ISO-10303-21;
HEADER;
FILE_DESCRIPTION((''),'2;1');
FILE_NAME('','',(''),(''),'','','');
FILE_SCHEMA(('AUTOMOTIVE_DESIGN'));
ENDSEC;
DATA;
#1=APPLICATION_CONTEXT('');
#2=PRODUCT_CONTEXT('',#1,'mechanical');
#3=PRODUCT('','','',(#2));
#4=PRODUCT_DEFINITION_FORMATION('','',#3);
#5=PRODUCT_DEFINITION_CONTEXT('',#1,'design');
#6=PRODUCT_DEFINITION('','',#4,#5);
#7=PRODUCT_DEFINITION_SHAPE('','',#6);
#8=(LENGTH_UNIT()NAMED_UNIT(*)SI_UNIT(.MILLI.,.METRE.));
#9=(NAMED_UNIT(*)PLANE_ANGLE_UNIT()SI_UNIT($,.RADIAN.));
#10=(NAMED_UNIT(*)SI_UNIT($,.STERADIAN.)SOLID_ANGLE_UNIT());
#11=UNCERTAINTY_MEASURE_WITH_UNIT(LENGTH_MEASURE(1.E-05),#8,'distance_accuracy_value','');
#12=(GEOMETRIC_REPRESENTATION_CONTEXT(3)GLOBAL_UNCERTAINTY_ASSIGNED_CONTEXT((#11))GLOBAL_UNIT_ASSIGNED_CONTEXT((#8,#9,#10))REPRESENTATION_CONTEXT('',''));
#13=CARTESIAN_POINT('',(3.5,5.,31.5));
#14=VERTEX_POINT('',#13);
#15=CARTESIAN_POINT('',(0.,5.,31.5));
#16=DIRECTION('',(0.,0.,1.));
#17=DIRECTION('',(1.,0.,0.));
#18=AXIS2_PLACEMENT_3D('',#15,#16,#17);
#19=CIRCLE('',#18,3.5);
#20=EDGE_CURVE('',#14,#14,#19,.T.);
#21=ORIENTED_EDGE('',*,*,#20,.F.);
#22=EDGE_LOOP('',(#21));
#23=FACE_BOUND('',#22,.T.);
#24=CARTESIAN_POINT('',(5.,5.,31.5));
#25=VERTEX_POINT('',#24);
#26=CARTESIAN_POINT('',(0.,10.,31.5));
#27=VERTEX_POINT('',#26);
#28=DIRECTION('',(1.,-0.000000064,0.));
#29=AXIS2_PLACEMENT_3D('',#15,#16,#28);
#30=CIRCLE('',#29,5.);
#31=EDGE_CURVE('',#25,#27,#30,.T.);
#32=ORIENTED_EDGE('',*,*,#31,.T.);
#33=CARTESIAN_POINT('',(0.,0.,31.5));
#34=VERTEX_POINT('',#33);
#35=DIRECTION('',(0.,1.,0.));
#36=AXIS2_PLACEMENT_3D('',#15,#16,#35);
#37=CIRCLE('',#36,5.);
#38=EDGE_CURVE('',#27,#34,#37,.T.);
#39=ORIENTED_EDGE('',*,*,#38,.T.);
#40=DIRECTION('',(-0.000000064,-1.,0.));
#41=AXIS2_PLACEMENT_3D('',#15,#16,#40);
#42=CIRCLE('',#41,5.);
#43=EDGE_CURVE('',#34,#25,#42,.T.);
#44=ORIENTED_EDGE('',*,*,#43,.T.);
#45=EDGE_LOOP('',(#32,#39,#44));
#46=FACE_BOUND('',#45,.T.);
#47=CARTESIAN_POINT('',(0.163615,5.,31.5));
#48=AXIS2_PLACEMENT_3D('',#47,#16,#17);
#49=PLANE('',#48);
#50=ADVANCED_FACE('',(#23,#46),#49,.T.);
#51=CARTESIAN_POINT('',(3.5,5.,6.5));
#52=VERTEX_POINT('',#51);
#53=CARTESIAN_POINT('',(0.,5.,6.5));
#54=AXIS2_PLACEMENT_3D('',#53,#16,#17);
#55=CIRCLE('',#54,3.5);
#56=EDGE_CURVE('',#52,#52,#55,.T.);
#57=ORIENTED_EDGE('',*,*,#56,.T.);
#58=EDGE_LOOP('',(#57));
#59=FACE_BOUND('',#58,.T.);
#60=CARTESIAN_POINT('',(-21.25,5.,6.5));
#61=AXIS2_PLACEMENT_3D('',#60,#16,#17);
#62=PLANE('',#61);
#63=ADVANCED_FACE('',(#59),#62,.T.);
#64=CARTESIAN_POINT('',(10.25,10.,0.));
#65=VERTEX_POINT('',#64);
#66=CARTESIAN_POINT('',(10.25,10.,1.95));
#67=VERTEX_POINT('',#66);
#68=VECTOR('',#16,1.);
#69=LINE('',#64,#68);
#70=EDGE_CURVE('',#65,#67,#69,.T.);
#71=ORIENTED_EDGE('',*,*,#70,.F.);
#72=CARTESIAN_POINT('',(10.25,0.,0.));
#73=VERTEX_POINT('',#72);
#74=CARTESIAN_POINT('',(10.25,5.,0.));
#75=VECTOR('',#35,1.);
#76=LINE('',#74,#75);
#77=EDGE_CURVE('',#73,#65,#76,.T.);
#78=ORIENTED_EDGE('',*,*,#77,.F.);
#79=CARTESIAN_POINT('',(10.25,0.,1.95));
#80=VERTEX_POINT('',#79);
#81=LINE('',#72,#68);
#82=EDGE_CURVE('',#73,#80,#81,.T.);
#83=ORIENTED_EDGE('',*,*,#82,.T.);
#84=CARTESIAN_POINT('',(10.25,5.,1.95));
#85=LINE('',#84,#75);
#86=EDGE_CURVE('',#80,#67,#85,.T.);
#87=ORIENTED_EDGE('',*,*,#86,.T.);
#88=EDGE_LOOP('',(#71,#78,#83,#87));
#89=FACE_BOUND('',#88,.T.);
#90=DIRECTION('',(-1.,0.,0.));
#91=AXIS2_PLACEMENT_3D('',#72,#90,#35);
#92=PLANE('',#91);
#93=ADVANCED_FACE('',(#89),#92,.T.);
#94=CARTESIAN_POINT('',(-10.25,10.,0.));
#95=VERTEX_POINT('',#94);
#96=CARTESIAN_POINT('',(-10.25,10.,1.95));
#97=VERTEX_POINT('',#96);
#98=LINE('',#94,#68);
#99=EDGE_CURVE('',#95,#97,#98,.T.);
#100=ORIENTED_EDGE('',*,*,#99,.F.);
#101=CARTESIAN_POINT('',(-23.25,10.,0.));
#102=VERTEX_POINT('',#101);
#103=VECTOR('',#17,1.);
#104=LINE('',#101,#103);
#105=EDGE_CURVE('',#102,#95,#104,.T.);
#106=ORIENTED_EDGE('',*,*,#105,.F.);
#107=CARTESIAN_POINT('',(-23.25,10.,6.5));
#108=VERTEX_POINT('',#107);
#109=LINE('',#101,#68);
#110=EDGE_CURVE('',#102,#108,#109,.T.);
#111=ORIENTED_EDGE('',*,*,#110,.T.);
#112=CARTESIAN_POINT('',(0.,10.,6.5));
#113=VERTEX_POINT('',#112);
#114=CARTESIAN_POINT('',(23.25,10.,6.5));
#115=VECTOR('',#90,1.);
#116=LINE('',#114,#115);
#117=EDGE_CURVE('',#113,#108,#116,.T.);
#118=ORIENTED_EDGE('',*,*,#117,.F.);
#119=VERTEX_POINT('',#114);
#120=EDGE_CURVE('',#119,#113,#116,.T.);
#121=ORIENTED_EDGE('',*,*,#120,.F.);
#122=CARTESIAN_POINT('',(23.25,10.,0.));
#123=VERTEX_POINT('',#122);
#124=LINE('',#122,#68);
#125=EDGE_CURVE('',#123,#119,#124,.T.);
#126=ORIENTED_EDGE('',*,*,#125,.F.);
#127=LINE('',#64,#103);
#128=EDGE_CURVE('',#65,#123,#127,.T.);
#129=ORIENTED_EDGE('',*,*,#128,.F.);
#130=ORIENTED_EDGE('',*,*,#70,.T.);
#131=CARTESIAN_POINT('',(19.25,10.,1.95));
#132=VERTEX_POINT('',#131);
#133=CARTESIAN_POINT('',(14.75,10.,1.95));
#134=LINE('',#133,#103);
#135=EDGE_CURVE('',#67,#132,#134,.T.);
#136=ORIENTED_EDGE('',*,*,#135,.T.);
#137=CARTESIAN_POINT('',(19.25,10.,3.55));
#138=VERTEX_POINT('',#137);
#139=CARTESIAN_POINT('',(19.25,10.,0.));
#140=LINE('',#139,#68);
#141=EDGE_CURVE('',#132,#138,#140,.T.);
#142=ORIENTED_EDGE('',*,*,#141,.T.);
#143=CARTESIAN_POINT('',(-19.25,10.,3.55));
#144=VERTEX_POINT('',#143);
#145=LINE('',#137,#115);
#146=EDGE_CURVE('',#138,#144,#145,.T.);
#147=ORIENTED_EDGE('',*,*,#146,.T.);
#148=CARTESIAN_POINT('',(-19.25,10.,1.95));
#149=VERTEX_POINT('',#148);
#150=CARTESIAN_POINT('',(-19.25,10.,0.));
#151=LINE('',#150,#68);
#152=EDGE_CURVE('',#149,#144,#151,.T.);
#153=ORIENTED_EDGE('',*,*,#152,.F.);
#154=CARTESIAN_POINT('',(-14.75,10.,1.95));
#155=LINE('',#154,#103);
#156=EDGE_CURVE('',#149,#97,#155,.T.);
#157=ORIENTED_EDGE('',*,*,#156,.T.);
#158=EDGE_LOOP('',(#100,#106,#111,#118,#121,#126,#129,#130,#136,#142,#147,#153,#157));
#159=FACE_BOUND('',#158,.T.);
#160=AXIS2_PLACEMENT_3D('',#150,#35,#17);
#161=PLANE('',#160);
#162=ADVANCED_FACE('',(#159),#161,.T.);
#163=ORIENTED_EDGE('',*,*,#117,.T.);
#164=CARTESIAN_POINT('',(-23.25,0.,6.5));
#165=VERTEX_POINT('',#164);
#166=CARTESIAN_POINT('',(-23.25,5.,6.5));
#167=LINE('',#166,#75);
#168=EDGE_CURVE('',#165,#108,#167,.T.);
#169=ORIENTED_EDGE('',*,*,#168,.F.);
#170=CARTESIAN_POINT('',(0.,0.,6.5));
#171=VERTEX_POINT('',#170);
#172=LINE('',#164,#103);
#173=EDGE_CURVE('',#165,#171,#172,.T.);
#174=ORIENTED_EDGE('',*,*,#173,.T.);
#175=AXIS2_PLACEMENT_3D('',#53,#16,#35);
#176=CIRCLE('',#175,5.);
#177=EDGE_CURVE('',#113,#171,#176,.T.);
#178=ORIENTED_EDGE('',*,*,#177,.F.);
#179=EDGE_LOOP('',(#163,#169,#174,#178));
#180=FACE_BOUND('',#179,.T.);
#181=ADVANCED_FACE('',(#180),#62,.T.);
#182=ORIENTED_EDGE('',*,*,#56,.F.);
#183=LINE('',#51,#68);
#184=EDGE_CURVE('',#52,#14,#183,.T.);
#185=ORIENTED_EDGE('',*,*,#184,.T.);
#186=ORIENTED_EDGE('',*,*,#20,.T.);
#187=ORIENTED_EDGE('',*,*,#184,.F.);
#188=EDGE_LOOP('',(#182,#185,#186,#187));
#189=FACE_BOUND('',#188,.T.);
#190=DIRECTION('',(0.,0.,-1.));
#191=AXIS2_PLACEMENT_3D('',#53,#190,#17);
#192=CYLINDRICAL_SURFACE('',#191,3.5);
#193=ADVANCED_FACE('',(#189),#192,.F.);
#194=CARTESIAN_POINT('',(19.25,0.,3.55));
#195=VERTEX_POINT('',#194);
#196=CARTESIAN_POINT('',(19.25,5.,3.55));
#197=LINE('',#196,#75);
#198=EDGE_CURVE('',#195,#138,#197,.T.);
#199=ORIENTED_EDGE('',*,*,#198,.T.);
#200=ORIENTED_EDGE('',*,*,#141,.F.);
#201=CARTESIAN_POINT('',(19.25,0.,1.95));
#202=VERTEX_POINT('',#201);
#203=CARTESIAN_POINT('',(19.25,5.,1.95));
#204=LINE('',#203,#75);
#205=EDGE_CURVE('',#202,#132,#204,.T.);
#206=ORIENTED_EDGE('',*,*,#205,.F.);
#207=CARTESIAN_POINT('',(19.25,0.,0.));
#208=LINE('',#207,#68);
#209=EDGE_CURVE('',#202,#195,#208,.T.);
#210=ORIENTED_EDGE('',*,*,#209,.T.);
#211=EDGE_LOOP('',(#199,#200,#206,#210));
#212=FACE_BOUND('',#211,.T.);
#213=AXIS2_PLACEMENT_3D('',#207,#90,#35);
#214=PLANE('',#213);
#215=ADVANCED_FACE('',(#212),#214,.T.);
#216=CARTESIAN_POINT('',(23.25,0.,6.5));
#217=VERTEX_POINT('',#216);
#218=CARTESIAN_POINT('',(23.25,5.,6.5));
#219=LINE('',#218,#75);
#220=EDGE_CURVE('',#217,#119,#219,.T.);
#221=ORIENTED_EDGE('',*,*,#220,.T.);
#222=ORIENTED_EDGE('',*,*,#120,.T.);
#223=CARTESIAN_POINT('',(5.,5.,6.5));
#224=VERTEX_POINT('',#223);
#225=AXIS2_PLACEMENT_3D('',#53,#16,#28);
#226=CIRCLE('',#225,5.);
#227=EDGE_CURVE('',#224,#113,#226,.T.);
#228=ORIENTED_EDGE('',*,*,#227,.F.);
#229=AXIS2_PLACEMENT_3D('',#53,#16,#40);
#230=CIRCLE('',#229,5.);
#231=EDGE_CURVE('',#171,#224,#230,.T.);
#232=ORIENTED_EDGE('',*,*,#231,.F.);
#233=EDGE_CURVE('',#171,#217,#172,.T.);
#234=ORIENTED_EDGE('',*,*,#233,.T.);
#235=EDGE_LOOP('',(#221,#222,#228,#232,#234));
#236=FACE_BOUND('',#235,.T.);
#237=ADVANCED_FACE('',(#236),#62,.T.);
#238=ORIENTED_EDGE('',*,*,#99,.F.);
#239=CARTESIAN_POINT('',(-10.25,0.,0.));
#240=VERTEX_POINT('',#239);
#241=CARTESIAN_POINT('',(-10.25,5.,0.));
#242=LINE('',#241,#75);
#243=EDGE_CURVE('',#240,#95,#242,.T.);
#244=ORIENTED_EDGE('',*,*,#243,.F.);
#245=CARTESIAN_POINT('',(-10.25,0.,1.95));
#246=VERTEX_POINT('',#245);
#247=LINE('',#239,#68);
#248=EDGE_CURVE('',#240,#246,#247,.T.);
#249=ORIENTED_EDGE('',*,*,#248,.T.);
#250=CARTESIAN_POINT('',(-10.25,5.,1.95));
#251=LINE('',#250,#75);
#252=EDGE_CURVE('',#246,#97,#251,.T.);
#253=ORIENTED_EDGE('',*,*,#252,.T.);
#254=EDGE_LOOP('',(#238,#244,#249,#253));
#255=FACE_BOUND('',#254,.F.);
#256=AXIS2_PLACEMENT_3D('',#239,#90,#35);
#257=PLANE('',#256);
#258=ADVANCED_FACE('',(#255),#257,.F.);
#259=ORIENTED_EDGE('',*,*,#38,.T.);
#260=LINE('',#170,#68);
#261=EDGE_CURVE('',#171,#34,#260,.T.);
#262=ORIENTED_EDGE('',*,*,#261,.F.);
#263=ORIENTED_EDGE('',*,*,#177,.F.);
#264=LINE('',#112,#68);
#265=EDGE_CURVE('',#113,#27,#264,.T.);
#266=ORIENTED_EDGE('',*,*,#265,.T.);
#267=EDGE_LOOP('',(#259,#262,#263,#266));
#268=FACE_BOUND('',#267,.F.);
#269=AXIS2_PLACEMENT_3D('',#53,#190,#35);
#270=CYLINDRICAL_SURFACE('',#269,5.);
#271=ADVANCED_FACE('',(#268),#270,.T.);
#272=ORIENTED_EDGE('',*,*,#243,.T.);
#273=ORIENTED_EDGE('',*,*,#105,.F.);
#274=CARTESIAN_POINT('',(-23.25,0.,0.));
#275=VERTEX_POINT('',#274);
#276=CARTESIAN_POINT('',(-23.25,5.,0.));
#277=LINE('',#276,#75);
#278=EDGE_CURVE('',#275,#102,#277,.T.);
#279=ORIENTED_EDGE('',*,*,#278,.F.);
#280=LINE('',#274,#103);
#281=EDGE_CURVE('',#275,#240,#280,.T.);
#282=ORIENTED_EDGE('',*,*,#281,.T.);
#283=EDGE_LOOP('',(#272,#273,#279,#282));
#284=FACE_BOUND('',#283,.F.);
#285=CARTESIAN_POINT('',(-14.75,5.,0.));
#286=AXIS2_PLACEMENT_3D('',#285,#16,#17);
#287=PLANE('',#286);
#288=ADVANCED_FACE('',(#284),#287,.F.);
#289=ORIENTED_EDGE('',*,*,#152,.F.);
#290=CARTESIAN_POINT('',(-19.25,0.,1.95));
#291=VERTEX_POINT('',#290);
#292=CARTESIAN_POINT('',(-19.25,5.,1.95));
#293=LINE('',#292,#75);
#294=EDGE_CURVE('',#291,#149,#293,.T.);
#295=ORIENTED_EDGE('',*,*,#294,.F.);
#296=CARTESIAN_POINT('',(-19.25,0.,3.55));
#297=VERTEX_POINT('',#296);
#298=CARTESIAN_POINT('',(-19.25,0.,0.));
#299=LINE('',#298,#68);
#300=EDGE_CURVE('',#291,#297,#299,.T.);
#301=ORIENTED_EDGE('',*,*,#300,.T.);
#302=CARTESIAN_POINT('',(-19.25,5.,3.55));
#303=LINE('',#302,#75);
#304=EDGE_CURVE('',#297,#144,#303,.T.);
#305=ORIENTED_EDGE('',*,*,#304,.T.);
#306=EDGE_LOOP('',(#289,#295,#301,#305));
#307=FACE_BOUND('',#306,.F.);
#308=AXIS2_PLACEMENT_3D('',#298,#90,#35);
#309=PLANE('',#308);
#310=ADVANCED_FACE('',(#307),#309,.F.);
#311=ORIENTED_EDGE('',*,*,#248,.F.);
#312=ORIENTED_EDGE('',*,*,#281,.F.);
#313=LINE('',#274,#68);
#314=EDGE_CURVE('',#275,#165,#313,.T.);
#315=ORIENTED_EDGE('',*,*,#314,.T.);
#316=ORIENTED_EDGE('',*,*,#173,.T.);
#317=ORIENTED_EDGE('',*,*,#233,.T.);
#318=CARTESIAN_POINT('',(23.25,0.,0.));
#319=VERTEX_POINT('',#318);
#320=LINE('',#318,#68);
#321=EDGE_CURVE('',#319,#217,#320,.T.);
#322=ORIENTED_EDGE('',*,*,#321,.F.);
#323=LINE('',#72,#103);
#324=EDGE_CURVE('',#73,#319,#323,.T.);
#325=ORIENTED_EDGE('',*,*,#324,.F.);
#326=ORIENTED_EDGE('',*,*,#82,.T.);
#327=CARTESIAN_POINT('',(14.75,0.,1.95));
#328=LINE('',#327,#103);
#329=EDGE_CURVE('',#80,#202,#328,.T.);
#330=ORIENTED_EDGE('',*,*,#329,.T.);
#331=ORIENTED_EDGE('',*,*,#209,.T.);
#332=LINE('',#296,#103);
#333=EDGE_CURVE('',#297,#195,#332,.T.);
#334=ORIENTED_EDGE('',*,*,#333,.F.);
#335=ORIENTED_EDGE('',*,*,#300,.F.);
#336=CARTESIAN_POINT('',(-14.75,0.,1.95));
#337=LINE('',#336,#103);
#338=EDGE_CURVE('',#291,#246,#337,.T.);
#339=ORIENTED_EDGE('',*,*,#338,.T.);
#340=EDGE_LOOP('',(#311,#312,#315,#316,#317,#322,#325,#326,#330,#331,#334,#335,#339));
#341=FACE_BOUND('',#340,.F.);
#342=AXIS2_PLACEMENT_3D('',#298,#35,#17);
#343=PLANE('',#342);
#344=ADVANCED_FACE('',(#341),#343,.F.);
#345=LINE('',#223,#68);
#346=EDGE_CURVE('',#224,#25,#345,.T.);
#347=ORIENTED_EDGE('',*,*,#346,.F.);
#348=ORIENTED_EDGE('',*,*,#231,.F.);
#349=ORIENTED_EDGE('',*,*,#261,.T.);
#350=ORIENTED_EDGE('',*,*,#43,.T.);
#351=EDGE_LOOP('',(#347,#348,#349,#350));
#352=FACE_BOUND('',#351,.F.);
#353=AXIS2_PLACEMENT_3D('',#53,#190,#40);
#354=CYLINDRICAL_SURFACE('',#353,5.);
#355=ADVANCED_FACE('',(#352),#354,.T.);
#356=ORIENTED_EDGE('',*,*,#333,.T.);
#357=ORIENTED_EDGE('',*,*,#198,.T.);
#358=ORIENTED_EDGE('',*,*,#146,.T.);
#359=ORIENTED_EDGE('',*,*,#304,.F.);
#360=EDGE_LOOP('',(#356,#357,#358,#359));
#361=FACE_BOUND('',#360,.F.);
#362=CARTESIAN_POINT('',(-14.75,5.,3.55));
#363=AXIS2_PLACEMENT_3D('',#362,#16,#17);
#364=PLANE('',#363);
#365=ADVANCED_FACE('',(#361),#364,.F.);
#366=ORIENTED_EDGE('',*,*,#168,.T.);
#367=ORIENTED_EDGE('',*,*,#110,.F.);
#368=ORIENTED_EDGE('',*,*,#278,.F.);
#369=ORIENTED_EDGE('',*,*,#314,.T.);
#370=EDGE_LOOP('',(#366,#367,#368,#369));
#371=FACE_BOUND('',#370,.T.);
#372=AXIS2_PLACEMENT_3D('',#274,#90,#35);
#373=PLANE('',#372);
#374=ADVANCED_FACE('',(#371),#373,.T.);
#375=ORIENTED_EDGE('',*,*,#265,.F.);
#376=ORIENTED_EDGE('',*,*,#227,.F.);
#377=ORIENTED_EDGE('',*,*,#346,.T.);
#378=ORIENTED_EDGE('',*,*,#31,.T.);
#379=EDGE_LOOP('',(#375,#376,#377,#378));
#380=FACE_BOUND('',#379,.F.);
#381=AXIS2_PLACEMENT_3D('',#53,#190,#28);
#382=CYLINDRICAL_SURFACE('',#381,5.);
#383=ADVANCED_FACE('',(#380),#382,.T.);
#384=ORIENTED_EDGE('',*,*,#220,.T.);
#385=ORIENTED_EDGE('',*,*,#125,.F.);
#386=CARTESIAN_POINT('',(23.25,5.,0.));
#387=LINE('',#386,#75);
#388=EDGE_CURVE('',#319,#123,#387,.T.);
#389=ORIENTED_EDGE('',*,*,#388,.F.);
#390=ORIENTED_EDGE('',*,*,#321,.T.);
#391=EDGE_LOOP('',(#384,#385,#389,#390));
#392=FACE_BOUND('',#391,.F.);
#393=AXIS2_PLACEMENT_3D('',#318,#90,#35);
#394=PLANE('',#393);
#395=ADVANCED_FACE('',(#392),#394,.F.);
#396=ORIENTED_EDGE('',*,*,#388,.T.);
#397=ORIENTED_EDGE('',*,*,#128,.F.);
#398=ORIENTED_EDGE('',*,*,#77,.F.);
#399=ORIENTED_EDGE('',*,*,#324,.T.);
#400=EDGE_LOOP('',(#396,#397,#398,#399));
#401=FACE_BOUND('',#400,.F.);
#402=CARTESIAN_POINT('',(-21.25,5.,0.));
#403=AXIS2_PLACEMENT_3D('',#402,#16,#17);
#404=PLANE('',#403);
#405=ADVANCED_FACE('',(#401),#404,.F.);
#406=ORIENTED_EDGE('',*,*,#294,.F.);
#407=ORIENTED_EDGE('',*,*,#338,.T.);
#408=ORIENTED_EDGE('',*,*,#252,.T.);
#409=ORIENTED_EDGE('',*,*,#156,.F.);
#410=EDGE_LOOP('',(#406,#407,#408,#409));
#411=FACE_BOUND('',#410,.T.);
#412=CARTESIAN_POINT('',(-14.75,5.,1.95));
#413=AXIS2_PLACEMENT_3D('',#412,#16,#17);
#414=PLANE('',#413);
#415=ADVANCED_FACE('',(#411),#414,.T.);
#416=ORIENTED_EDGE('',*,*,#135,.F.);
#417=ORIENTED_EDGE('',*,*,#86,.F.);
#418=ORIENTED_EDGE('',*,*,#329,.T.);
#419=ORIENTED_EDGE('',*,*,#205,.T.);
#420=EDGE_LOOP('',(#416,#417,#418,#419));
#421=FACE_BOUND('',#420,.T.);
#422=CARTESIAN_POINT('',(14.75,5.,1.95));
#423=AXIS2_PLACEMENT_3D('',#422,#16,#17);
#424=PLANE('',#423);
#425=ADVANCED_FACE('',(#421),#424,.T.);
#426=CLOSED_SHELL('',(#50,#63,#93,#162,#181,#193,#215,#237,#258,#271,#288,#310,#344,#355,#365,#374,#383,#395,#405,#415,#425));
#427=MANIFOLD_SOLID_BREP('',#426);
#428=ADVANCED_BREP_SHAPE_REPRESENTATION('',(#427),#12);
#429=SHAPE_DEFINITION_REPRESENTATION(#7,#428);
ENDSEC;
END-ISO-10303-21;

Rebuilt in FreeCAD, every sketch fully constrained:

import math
import FreeCAD as App
import Part
import Sketcher

V = App.Vector
Q = App.Units.Quantity

doc = App.newDocument("Part")
body = doc.addObject("PartDesign::Body", "Body")

# Sketch on XY plane
sketch1 = body.newObject("Sketcher::SketchObject", "Sketch")
sketch1.AttachmentSupport = (doc.getObject("XY_Plane"), [""])
sketch1.MapMode = "FlatFace"
sketch1.addGeometry(Part.LineSegment(V(-23.25, 10, 0), V(-23.25, 0, 0)), False)
sketch1.addGeometry(Part.LineSegment(V(-23.25, 0, 0), V(23.25, 0, 0)), False)
sketch1.addGeometry(Part.LineSegment(V(23.25, 0, 0), V(23.25, 10, 0)), False)
sketch1.addGeometry(Part.LineSegment(V(23.25, 10, 0), V(-23.25, 10, 0)), False)
sketch1.addConstraint(Sketcher.Constraint("Coincident", 0, 2, 1, 1))
sketch1.addConstraint(Sketcher.Constraint("Coincident", 1, 2, 2, 1))
sketch1.addConstraint(Sketcher.Constraint("Coincident", 2, 2, 3, 1))
sketch1.addConstraint(Sketcher.Constraint("Coincident", 3, 2, 0, 1))
sketch1.addConstraint(Sketcher.Constraint("Vertical", 0))
sketch1.addConstraint(Sketcher.Constraint("Horizontal", 1))
sketch1.addConstraint(Sketcher.Constraint("Vertical", 2))
sketch1.addConstraint(Sketcher.Constraint("Horizontal", 3))
sketch1.addConstraint(Sketcher.Constraint("Symmetric", 0, 2, 1, 2, -1, 1))
sketch1.addConstraint(Sketcher.Constraint("DistanceY", 0, 2, 0, 1, Q("10 mm")))
sketch1.addConstraint(Sketcher.Constraint("DistanceX", 1, 1, 1, 2, Q("46.5 mm")))
pad1 = body.newObject("PartDesign::Pad", "Pad")
pad1.Profile = sketch1
pad1.Length = 6.5

# Sketch on XY plane
sketch2 = body.newObject("Sketcher::SketchObject", "Sketch001")
sketch2.AttachmentSupport = (doc.getObject("XY_Plane"), [""])
sketch2.MapMode = "FlatFace"
sketch2.addGeometry(Part.LineSegment(V(-19.25, 10, 0), V(-19.25, 0, 0)), False)
sketch2.addGeometry(Part.LineSegment(V(-19.25, 0, 0), V(19.25, 0, 0)), False)
sketch2.addGeometry(Part.LineSegment(V(19.25, 0, 0), V(19.25, 10, 0)), False)
sketch2.addGeometry(Part.LineSegment(V(19.25, 10, 0), V(-19.25, 10, 0)), False)
sketch2.addConstraint(Sketcher.Constraint("Coincident", 0, 2, 1, 1))
sketch2.addConstraint(Sketcher.Constraint("Coincident", 1, 2, 2, 1))
sketch2.addConstraint(Sketcher.Constraint("Coincident", 2, 2, 3, 1))
sketch2.addConstraint(Sketcher.Constraint("Coincident", 3, 2, 0, 1))
sketch2.addConstraint(Sketcher.Constraint("Vertical", 0))
sketch2.addConstraint(Sketcher.Constraint("Horizontal", 1))
sketch2.addConstraint(Sketcher.Constraint("Vertical", 2))
sketch2.addConstraint(Sketcher.Constraint("Horizontal", 3))
sketch2.addConstraint(Sketcher.Constraint("Symmetric", 0, 2, 1, 2, -1, 1))
sketch2.addConstraint(Sketcher.Constraint("DistanceY", 0, 2, 0, 1, Q("10 mm")))
sketch2.addConstraint(Sketcher.Constraint("DistanceX", 1, 1, 1, 2, Q("38.5 mm")))
pocket1 = body.newObject("PartDesign::Pocket", "Pocket")
pocket1.Profile = sketch2
pocket1.Length = 3.55
pocket1.Reversed = True

# Sketch on XY plane
sketch3 = body.newObject("Sketcher::SketchObject", "Sketch002")
sketch3.AttachmentSupport = (doc.getObject("XY_Plane"), [""])
sketch3.MapMode = "FlatFace"
sketch3.addGeometry(Part.LineSegment(V(-19.25, 10, 0), V(-19.25, 0, 0)), False)
sketch3.addGeometry(Part.LineSegment(V(-19.25, 0, 0), V(-10.25, 0, 0)), False)
sketch3.addGeometry(Part.LineSegment(V(-10.25, 0, 0), V(-10.25, 10, 0)), False)
sketch3.addGeometry(Part.LineSegment(V(-10.25, 10, 0), V(-19.25, 10, 0)), False)
sketch3.addGeometry(Part.LineSegment(V(10.25, 10, 0), V(10.25, 0, 0)), False)
sketch3.addGeometry(Part.LineSegment(V(10.25, 0, 0), V(19.25, 0, 0)), False)
sketch3.addGeometry(Part.LineSegment(V(19.25, 0, 0), V(19.25, 10, 0)), False)
sketch3.addGeometry(Part.LineSegment(V(19.25, 10, 0), V(10.25, 10, 0)), False)
sketch3.addConstraint(Sketcher.Constraint("Coincident", 0, 2, 1, 1))
sketch3.addConstraint(Sketcher.Constraint("Coincident", 1, 2, 2, 1))
sketch3.addConstraint(Sketcher.Constraint("Coincident", 2, 2, 3, 1))
sketch3.addConstraint(Sketcher.Constraint("Coincident", 3, 2, 0, 1))
sketch3.addConstraint(Sketcher.Constraint("Coincident", 4, 2, 5, 1))
sketch3.addConstraint(Sketcher.Constraint("Coincident", 5, 2, 6, 1))
sketch3.addConstraint(Sketcher.Constraint("Coincident", 6, 2, 7, 1))
sketch3.addConstraint(Sketcher.Constraint("Coincident", 7, 2, 4, 1))
sketch3.addConstraint(Sketcher.Constraint("Vertical", 0))
sketch3.addConstraint(Sketcher.Constraint("Horizontal", 1))
sketch3.addConstraint(Sketcher.Constraint("Vertical", 2))
sketch3.addConstraint(Sketcher.Constraint("Horizontal", 3))
sketch3.addConstraint(Sketcher.Constraint("Vertical", 4))
sketch3.addConstraint(Sketcher.Constraint("Horizontal", 5))
sketch3.addConstraint(Sketcher.Constraint("Vertical", 6))
sketch3.addConstraint(Sketcher.Constraint("Horizontal", 7))
sketch3.addConstraint(Sketcher.Constraint("Symmetric", 1, 2, 4, 2, -1, 1))
sketch3.addConstraint(Sketcher.Constraint("Symmetric", 0, 2, 5, 2, -2))
sketch3.addConstraint(Sketcher.Constraint("Horizontal", 3, 2, 6, 2))
sketch3.addConstraint(Sketcher.Constraint("DistanceX", 1, 1, 1, 2, Q("9 mm")))
sketch3.addConstraint(Sketcher.Constraint("DistanceY", 0, 2, 0, 1, Q("10 mm")))
sketch3.addConstraint(Sketcher.Constraint("DistanceX", 1, 2, 4, 2, Q("20.5 mm")))
pad2 = body.newObject("PartDesign::Pad", "Pad001")
pad2.Profile = sketch3
pad2.Length = 1.95

# Sketch on XY plane
sketch4 = body.newObject("Sketcher::SketchObject", "Sketch003")
sketch4.AttachmentSupport = (doc.getObject("XY_Plane"), [""])
sketch4.MapMode = "FlatFace"
sketch4.AttachmentOffset = App.Placement(V(0, 0, 6.5), App.Rotation())
sketch4.addGeometry(Part.ArcOfCircle(Part.Circle(V(0, 5, 0), V(0, 0, 1), 5), math.radians(-90.000004), math.radians(0.000004)), False)
sketch4.addGeometry(Part.ArcOfCircle(Part.Circle(V(0, 5, 0), V(0, 0, 1), 5), math.radians(-0.000004), math.radians(90.000004)), False)
sketch4.addGeometry(Part.ArcOfCircle(Part.Circle(V(0, 5, 0), V(0, 0, 1), 5), math.radians(90), math.radians(270)), False)
sketch4.addGeometry(Part.Circle(V(0, 5, 0), V(0, 0, 1), 3.5), False)
sketch4.addConstraint(Sketcher.Constraint("Tangent", 0, 2, 1, 1))
sketch4.addConstraint(Sketcher.Constraint("Tangent", 1, 2, 2, 1))
sketch4.addConstraint(Sketcher.Constraint("Tangent", 2, 2, 0, 1))
sketch4.addConstraint(Sketcher.Constraint("Coincident", 2, 2, -1, 1))
sketch4.addConstraint(Sketcher.Constraint("Coincident", 3, 3, 0, 3))
sketch4.addConstraint(Sketcher.Constraint("PointOnObject", 0, 3, -2))
sketch4.addConstraint(Sketcher.Constraint("PointOnObject", 1, 2, -2))
sketch4.addConstraint(Sketcher.Constraint("Horizontal", 3, 3, 0, 2))
sketch4.addConstraint(Sketcher.Constraint("Diameter", 3, Q("7 mm")))
sketch4.addConstraint(Sketcher.Constraint("Radius", 0, Q("5 mm")))
pad3 = body.newObject("PartDesign::Pad", "Pad002")
pad3.Profile = sketch4
pad3.Length = 25

doc.recompute()
